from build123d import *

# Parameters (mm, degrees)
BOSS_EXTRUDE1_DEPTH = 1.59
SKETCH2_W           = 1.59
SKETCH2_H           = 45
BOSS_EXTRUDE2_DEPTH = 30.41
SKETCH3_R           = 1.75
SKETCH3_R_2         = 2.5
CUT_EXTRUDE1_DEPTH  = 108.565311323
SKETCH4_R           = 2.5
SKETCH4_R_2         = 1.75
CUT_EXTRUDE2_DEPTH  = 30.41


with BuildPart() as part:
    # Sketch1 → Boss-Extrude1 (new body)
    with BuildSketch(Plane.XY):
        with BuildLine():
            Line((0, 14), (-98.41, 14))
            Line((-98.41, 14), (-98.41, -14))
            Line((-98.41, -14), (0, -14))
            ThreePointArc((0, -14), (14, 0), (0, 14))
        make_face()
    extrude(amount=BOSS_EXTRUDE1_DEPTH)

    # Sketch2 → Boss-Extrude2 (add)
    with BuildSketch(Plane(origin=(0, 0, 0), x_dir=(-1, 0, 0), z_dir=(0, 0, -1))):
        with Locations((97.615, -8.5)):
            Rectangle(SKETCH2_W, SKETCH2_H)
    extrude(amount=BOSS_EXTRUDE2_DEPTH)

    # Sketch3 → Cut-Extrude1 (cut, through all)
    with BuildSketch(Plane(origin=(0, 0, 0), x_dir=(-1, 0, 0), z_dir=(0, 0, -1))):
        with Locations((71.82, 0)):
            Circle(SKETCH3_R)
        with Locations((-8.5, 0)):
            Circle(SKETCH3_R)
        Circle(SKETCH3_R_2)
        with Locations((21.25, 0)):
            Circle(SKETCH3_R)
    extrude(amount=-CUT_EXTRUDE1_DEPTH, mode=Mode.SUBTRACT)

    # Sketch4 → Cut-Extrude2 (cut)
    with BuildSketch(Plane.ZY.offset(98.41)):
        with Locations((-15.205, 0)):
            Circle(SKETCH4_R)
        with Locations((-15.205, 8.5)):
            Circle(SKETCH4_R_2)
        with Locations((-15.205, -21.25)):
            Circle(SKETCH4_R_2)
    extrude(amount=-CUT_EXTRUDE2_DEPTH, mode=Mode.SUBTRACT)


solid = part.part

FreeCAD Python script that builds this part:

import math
import FreeCAD as App
import Part
import Sketcher
from FreeCAD import Vector


def add_polygon(sketch, points):
    """Adds a closed chain of lines whose ends are joined by coincident constraints."""
    first, n = sketch.GeometryCount, len(points)
    for a, b in zip(points, points[1:] + points[:1]):
        sketch.addGeometry(Part.LineSegment(App.Vector(*a, 0), App.Vector(*b, 0)), False)
    for i in range(n):
        sketch.addConstraint(Sketcher.Constraint("Coincident", first + i, 2, first + (i + 1) % n, 1))

doc = App.newDocument("Part")
params = doc.addObject("Spreadsheet::Sheet", "Params")
for row, (alias, value) in enumerate([
    ("sketch1_radius", "14 mm"),
    ("sketch1_width", "98.41 mm"),
    ("pad1_length", "1.59 mm"),
    ("sketch2_height", "45 mm"),
    ("sketch2_width", "1.59 mm"),
    ("pad2_length", "30.41 mm"),
    ("sketch3_diameter", "5 mm"),
    ("sketch3_diameter2", "3.5 mm"),
    ("sketch4_diameter", "5 mm"),
    ("sketch4_diameter2", "3.5 mm"),
    ("pocket2_length", "30.41 mm"),
], start=1):
    params.set(f"A{row}", alias)
    params.set(f"B{row}", "=" + value)
    params.setAlias(f"B{row}", alias)

body = doc.addObject("PartDesign::Body", "Body")

sketch1 = body.newObject("Sketcher::SketchObject", "Sketch")
sketch1.AttachmentSupport = (doc.getObject("XY_Plane"), [""])
sketch1.MapMode = "FlatFace"
sketch1.addGeometry(Part.LineSegment(Vector(0, 14, 0), Vector(-98.41, 14, 0)), False)
sketch1.addGeometry(Part.LineSegment(Vector(-98.41, 14, 0), Vector(-98.41, -14, 0)), False)
sketch1.addGeometry(Part.LineSegment(Vector(-98.41, -14, 0), Vector(0, -14, 0)), False)
sketch1.addGeometry(Part.ArcOfCircle(Part.Circle(Vector(0, 0, 0), Vector(0, 0, 1), 14), math.radians(-90), math.radians(90)), False)
sketch1.addConstraint(Sketcher.Constraint("Coincident", 0, 2, 1, 1))
sketch1.addConstraint(Sketcher.Constraint("Coincident", 1, 2, 2, 1))
sketch1.addConstraint(Sketcher.Constraint("Tangent", 2, 2, 3, 1))
sketch1.addConstraint(Sketcher.Constraint("Tangent", 3, 2, 0, 1))
sketch1.addConstraint(Sketcher.Constraint("Horizontal", 0))
sketch1.addConstraint(Sketcher.Constraint("Vertical", 1))
sketch1.addConstraint(Sketcher.Constraint("Horizontal", 2))
sketch1.addConstraint(Sketcher.Constraint("Coincident", 3, 3, -1, 1))
sketch1.addConstraint(Sketcher.Constraint("Radius", 3, 14.0))
sketch1.addConstraint(Sketcher.Constraint("DistanceX", 0, 2, 0, 1, 98.41))
sketch1.setExpression("Constraints[8]", "Params.sketch1_radius")
sketch1.setExpression("Constraints[9]", "Params.sketch1_width")
pad1 = body.newObject("PartDesign::Pad", "Pad")
pad1.Profile = sketch1
pad1.setExpression("Length", "Params.pad1_length")

sketch2 = body.newObject("Sketcher::SketchObject", "Sketch001")
sketch2.AttachmentSupport = (doc.getObject("XY_Plane"), [""])
sketch2.MapMode = "FlatFace"
add_polygon(sketch2, [(-96.82, 14), (-96.82, -31), (-98.41, -31), (-98.41, 14)])
sketch2.addConstraint(Sketcher.Constraint("Vertical", 0))
sketch2.addConstraint(Sketcher.Constraint("Horizontal", 1))
sketch2.addConstraint(Sketcher.Constraint("Vertical", 2))
sketch2.addConstraint(Sketcher.Constraint("Horizontal", 3))
sketch2.addConstraint(Sketcher.Constraint("DistanceY", 0, 2, 0, 1, 45.0))
sketch2.addConstraint(Sketcher.Constraint("DistanceY", 0, 2, -1, 1, 31.0))
sketch2.addConstraint(Sketcher.Constraint("DistanceX", 1, 2, 1, 1, 1.59))
sketch2.addConstraint(Sketcher.Constraint("DistanceX", 0, 2, -1, 1, 96.82))
sketch2.setExpression("Constraints[8]", "Params.sketch2_height")
sketch2.setExpression("Constraints[10]", "Params.sketch2_width")
pad2 = body.newObject("PartDesign::Pad", "Pad001")
pad2.Profile = sketch2
pad2.setExpression("Length", "Params.pad2_length")
pad2.Reversed = True

sketch3 = body.newObject("Sketcher::SketchObject", "Sketch002")
sketch3.AttachmentSupport = (doc.getObject("XY_Plane"), [""])
sketch3.MapMode = "FlatFace"
sketch3.addGeometry(Part.Circle(Vector(-71.82, 0, 0), Vector(0, 0, 1), 1.75), False)
sketch3.addGeometry(Part.Circle(Vector(8.5, 0, 0), Vector(0, 0, 1), 1.75), False)
sketch3.addGeometry(Part.Circle(Vector(0, 0, 0), Vector(0, 0, 1), 2.5), False)
sketch3.addGeometry(Part.Circle(Vector(-21.25, 0, 0), Vector(0, 0, 1), 1.75), False)
sketch3.addConstraint(Sketcher.Constraint("Coincident", 2, 3, -1, 1))
sketch3.addConstraint(Sketcher.Constraint("Equal", 0, 1))
sketch3.addConstraint(Sketcher.Constraint("Equal", 1, 3))
sketch3.addConstraint(Sketcher.Constraint("PointOnObject", 0, 3, -1))
sketch3.addConstraint(Sketcher.Constraint("PointOnObject", 1, 3, -1))
sketch3.addConstraint(Sketcher.Constraint("PointOnObject", 3, 3, -1))
sketch3.addConstraint(Sketcher.Constraint("Diameter", 2, 5.0))
sketch3.addConstraint(Sketcher.Constraint("Diameter", 0, 3.5))
sketch3.addConstraint(Sketcher.Constraint("DistanceX", -1, 1, 1, 3, 8.5))
sketch3.addConstraint(Sketcher.Constraint("DistanceX", 0, 3, -1, 1, 71.82))
sketch3.addConstraint(Sketcher.Constraint("DistanceX", 3, 3, -1, 1, 21.25))
sketch3.setExpression("Constraints[6]", "Params.sketch3_diameter")
sketch3.setExpression("Constraints[7]", "Params.sketch3_diameter2")
pocket1 = body.newObject("PartDesign::Pocket", "Pocket")
pocket1.Profile = sketch3
pocket1.Type = "ThroughAll"
pocket1.Reversed = True

sketch4 = body.newObject("Sketcher::SketchObject", "Sketch003")
sketch4.AttachmentSupport = (doc.getObject("YZ_Plane"), [""])
sketch4.MapMode = "FlatFace"
sketch4.AttachmentOffset = App.Placement(Vector(0, 0, -98.41), App.Rotation())
sketch4.addGeometry(Part.Circle(Vector(0, -15.205, 0), Vector(0, 0, 1), 2.5), False)
sketch4.addGeometry(Part.Circle(Vector(8.5, -15.205, 0), Vector(0, 0, 1), 1.75), False)
sketch4.addGeometry(Part.Circle(Vector(-21.25, -15.205, 0), Vector(0, 0, 1), 1.75), False)
sketch4.addConstraint(Sketcher.Constraint("Equal", 1, 2))
sketch4.addConstraint(Sketcher.Constraint("PointOnObject", 0, 3, -2))
sketch4.addConstraint(Sketcher.Constraint("Horizontal", 0, 3, 1, 3))
sketch4.addConstraint(Sketcher.Constraint("Horizontal", 1, 3, 2, 3))
sketch4.addConstraint(Sketcher.Constraint("Diameter", 0, 5.0))
sketch4.addConstraint(Sketcher.Constraint("Diameter", 1, 3.5))
sketch4.addConstraint(Sketcher.Constraint("DistanceX", -1, 1, 1, 3, 8.5))
sketch4.addConstraint(Sketcher.Constraint("DistanceX", 2, 3, -1, 1, 21.25))
sketch4.addConstraint(Sketcher.Constraint("DistanceY", 0, 3, -1, 1, 15.205))
sketch4.setExpression("Constraints[4]", "Params.sketch4_diameter")
sketch4.setExpression("Constraints[5]", "Params.sketch4_diameter2")
pocket2 = body.newObject("PartDesign::Pocket", "Pocket001")
pocket2.Profile = sketch4
pocket2.setExpression("Length", "Params.pocket2_length")
pocket2.Reversed = True

doc.recompute()
